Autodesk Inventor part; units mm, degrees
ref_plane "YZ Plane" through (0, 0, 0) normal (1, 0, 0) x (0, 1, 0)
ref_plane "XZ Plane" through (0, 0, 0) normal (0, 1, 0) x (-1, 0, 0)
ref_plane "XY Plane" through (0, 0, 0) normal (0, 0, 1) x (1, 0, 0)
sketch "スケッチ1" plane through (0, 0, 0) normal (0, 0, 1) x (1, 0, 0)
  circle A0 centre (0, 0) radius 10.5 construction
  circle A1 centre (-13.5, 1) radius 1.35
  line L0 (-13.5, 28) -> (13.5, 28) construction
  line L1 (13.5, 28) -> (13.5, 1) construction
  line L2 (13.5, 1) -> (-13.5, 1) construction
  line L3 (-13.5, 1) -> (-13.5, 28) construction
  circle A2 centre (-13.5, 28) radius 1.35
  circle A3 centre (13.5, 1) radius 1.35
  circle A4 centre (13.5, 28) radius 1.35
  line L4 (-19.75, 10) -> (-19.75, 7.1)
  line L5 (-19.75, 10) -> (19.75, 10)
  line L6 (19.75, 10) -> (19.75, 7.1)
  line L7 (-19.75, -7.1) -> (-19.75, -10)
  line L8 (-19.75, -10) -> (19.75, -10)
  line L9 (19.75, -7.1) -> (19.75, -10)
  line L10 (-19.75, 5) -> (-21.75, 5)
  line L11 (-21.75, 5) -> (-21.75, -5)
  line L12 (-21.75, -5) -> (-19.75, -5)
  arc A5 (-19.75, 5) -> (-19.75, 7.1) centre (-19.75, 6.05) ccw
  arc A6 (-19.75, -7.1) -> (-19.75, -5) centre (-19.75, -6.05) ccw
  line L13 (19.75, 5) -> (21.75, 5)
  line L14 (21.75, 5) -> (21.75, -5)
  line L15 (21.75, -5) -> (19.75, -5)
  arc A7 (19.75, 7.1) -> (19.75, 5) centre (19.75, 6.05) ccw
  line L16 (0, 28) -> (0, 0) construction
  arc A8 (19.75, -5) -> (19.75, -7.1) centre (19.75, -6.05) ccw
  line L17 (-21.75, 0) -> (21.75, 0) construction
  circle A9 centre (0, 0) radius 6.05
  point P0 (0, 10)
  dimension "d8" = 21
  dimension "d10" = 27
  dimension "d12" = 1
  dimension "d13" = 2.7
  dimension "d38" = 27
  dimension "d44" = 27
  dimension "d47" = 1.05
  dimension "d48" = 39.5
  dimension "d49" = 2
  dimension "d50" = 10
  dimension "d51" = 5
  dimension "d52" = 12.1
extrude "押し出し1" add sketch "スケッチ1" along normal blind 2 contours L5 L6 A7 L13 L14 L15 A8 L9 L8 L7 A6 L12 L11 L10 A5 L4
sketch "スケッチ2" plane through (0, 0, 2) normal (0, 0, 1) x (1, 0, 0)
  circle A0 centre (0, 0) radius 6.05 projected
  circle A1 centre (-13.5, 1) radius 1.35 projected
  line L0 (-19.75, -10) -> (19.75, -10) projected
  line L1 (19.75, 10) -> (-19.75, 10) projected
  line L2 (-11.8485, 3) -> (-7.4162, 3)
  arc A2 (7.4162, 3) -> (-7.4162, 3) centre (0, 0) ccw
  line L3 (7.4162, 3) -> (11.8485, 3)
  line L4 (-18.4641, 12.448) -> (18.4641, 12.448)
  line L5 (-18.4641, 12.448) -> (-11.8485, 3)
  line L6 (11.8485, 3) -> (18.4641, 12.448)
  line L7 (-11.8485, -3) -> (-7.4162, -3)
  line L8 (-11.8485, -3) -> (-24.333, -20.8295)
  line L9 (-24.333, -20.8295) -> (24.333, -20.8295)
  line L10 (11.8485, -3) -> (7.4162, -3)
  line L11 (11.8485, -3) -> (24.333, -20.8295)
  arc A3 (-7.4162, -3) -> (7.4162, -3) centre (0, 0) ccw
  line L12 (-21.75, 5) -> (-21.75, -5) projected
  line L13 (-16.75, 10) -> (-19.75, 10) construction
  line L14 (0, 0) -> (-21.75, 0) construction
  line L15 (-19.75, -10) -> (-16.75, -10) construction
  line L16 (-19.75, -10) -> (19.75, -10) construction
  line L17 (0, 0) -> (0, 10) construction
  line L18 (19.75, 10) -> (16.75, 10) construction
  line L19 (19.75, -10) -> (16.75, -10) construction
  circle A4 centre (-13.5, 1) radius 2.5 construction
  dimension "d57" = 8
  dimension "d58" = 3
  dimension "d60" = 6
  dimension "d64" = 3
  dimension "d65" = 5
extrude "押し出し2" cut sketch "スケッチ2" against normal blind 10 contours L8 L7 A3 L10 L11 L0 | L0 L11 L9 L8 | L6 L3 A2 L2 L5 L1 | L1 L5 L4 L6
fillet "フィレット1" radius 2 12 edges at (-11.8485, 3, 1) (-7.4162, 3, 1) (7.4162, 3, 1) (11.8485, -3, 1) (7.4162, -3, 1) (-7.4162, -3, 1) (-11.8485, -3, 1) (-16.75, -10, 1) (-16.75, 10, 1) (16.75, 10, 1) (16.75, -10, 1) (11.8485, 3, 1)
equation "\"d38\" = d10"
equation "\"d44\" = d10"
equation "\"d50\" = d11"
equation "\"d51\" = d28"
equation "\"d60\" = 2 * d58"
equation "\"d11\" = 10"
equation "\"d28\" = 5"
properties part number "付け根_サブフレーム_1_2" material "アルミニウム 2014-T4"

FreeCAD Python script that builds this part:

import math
import FreeCAD as App
import Part
import Sketcher
from FreeCAD import Vector
Q = App.Units.Quantity


def edges_at(feature, points):
    """Names of the edges that pass closest to the given points."""
    edges = feature.Shape.Edges
    near = lambda p: min(range(len(edges)), key=lambda i: edges[i].distToShape(Part.Vertex(*p))[0])
    return sorted({f"Edge{near(p) + 1}" for p in points})

doc = App.newDocument("Part")
params = doc.addObject("Spreadsheet::Sheet", "Params")
for row, (alias, value) in enumerate([
    ("sketch1_diameter", "2.7 mm"),
    ("sketch1_diameter2", "12.1 mm"),
    ("sketch1_width", "2 mm"),
    ("sketch1_height", "10 mm"),
    ("sketch1_radius", "1.05 mm"),
    ("pad1_length", "2 mm"),
    ("sketch2_radius", "8 mm"),
    ("pocket1_length", "10 mm"),
    ("fillet_radius", "2 mm"),
], start=1):
    params.set(f"A{row}", alias)
    params.set(f"B{row}", "=" + value)
    params.setAlias(f"B{row}", alias)

body = doc.addObject("PartDesign::Body", "Body")

# Sketch on XY plane
sketch1 = body.newObject("Sketcher::SketchObject", "Sketch")
sketch1.AttachmentSupport = (doc.getObject("XY_Plane"), [""])
sketch1.MapMode = "FlatFace"
sketch1.addGeometry([
    Part.LineSegment(Vector(19.75, 10, 0), Vector(-19.75, 10, 0)),  # 0
    Part.LineSegment(Vector(-19.75, 10, 0), Vector(-19.75, 7.1, 0)),  # 1
    Part.ArcOfCircle(Part.Circle(Vector(-19.75, 6.05, 0), Vector(0, 0, 1), 1.05), math.radians(-90), math.radians(90)),  # 2
    Part.LineSegment(Vector(-19.75, 5, 0), Vector(-21.75, 5, 0)),  # 3
    Part.LineSegment(Vector(-21.75, 5, 0), Vector(-21.75, -5, 0)),  # 4
    Part.LineSegment(Vector(-21.75, -5, 0), Vector(-19.75, -5, 0)),  # 5
    Part.ArcOfCircle(Part.Circle(Vector(-19.75, -6.05, 0), Vector(0, 0, 1), 1.05), math.radians(-90), math.radians(90)),  # 6
    Part.LineSegment(Vector(-19.75, -7.1, 0), Vector(-19.75, -10, 0)),  # 7
    Part.LineSegment(Vector(-19.75, -10, 0), Vector(19.75, -10, 0)),  # 8
    Part.LineSegment(Vector(19.75, -10, 0), Vector(19.75, -7.1, 0)),  # 9
    Part.ArcOfCircle(Part.Circle(Vector(19.75, -6.05, 0), Vector(0, 0, 1), 1.05), math.radians(90), math.radians(270)),  # 10
    Part.LineSegment(Vector(19.75, -5, 0), Vector(21.75, -5, 0)),  # 11
    Part.LineSegment(Vector(21.75, -5, 0), Vector(21.75, 5, 0)),  # 12
    Part.LineSegment(Vector(21.75, 5, 0), Vector(19.75, 5, 0)),  # 13
    Part.ArcOfCircle(Part.Circle(Vector(19.75, 6.05, 0), Vector(0, 0, 1), 1.05), math.radians(90), math.radians(270)),  # 14
    Part.LineSegment(Vector(19.75, 7.1, 0), Vector(19.75, 10, 0)),  # 15
    Part.Circle(Vector(-13.5, 1, 0), Vector(0, 0, 1), 1.35),  # 16
    Part.Circle(Vector(0, 0, 0), Vector(0, 0, 1), 6.05),  # 17
    Part.Circle(Vector(13.5, 1, 0), Vector(0, 0, 1), 1.35),  # 18
], False)
sketch1.addConstraint([
    Sketcher.Constraint("Coincident", 0, 2, 1, 1),
    Sketcher.Constraint("Coincident", 1, 2, 2, 2),
    Sketcher.Constraint("Tangent", 2, 1, 3, 1),
    Sketcher.Constraint("Coincident", 3, 2, 4, 1),
    Sketcher.Constraint("Coincident", 4, 2, 5, 1),
    Sketcher.Constraint("Tangent", 5, 2, 6, 2),
    Sketcher.Constraint("Coincident", 6, 1, 7, 1),
    Sketcher.Constraint("Coincident", 7, 2, 8, 1),
    Sketcher.Constraint("Coincident", 8, 2, 9, 1),
    Sketcher.Constraint("Coincident", 9, 2, 10, 2),
    Sketcher.Constraint("Tangent", 10, 1, 11, 1),
    Sketcher.Constraint("Coincident", 11, 2, 12, 1),
    Sketcher.Constraint("Coincident", 12, 2, 13, 1),
    Sketcher.Constraint("Tangent", 13, 2, 14, 2),
    Sketcher.Constraint("Coincident", 14, 1, 15, 1),
    Sketcher.Constraint("Coincident", 15, 2, 0, 1),
    Sketcher.Constraint("Horizontal", 0),
    Sketcher.Constraint("Vertical", 1),
    Sketcher.Constraint("Horizontal", 3),
    Sketcher.Constraint("Vertical", 4),
    Sketcher.Constraint("Horizontal", 5),
    Sketcher.Constraint("Vertical", 7),
    Sketcher.Constraint("Horizontal", 8),
    Sketcher.Constraint("Vertical", 9),
    Sketcher.Constraint("Horizontal", 11),
    Sketcher.Constraint("Vertical", 12),
    Sketcher.Constraint("Horizontal", 13),
    Sketcher.Constraint("Vertical", 15),
    Sketcher.Constraint("Coincident", 17, 3, -1, 1),
    Sketcher.Constraint("Equal", 2, 6),
    Sketcher.Constraint("Equal", 6, 10),
    Sketcher.Constraint("Equal", 10, 14),
    Sketcher.Constraint("Equal", 16, 18),
    Sketcher.Constraint("Symmetric", 2, 3, 10, 3, -1, 1),
    Sketcher.Constraint("Symmetric", 6, 3, 14, 3, -1, 1),
    Sketcher.Constraint("Symmetric", 0, 2, 8, 2, -1, 1),
    Sketcher.Constraint("Symmetric", 6, 3, 10, 3, -2),
    Sketcher.Constraint("Symmetric", 16, 3, 18, 3, -2),
    Sketcher.Constraint("Vertical", 6, 3, 0, 2),
    Sketcher.Constraint("Vertical", 5, 2, 6, 1),
    Sketcher.Constraint("Vertical", 13, 2, 14, 1),
    Sketcher.Constraint("Equal", 5, 11),
    Sketcher.Constraint("Diameter", 16, 2.7),
    Sketcher.Constraint("Diameter", 17, 12.1),
    Sketcher.Constraint("DistanceX", 3, 2, 3, 1, 2.0),
    Sketcher.Constraint("DistanceY", 4, 2, 4, 1, 10.0),
    Sketcher.Constraint("Radius", 2, 1.05),
    Sketcher.Constraint("DistanceX", 0, 2, 0, 1, 39.5),
    Sketcher.Constraint("DistanceY", -1, 1, 16, 3, 1.0),
    Sketcher.Constraint("DistanceY", -1, 1, 0, 2, 10.0),
    Sketcher.Constraint("DistanceX", 16, 3, 18, 3, 27.0),
])
sketch1.setExpression("Constraints[42]", "Params.sketch1_diameter")
sketch1.setExpression("Constraints[43]", "Params.sketch1_diameter2")
sketch1.setExpression("Constraints[44]", "Params.sketch1_width")
sketch1.setExpression("Constraints[45]", "Params.sketch1_height")
sketch1.setExpression("Constraints[46]", "Params.sketch1_radius")
pad1 = body.newObject("PartDesign::Pad", "Pad")
pad1.Profile = sketch1
pad1.setExpression("Length", "Params.pad1_length")

# Sketch on XY plane
sketch2 = body.newObject("Sketcher::SketchObject", "Sketch001")
sketch2.AttachmentSupport = (doc.getObject("XY_Plane"), [""])
sketch2.MapMode = "FlatFace"
sketch2.AttachmentOffset = App.Placement(Vector(0, 0, 2), App.Rotation())
sketch2.addGeometry([
    Part.LineSegment(Vector(-11.8485, -3, 0), Vector(-24.333, -20.8295, 0)),  # 0
    Part.LineSegment(Vector(-24.333, -20.8295, 0), Vector(24.333, -20.8295, 0)),  # 1
    Part.LineSegment(Vector(24.333, -20.8295, 0), Vector(11.8485, -3, 0)),  # 2
    Part.LineSegment(Vector(11.8485, -3, 0), Vector(7.4162, -3, 0)),  # 3
    Part.ArcOfCircle(Part.Circle(Vector(0, 0, 0), Vector(0, 0, 1), 8.000001), math.radians(-157.975691), math.radians(-22.024309)),  # 4
    Part.LineSegment(Vector(-7.4162, -3, 0), Vector(-11.8485, -3, 0)),  # 5
    Part.LineSegment(Vector(11.8485, 3, 0), Vector(18.4641, 12.448, 0)),  # 6
    Part.LineSegment(Vector(18.4641, 12.448, 0), Vector(-18.4641, 12.448, 0)),  # 7
    Part.LineSegment(Vector(-18.4641, 12.448, 0), Vector(-11.8485, 3, 0)),  # 8
    Part.LineSegment(Vector(-11.8485, 3, 0), Vector(-7.4162, 3, 0)),  # 9
    Part.ArcOfCircle(Part.Circle(Vector(0, 0, 0), Vector(0, 0, 1), 8.000001), math.radians(22.024309), math.radians(157.975691)),  # 10
    Part.LineSegment(Vector(7.4162, 3, 0), Vector(11.8485, 3, 0)),  # 11
], False)
sketch2.addConstraint([
    Sketcher.Constraint("Coincident", 0, 2, 1, 1),
    Sketcher.Constraint("Coincident", 1, 2, 2, 1),
    Sketcher.Constraint("Coincident", 2, 2, 3, 1),
    Sketcher.Constraint("Coincident", 3, 2, 4, 2),
    Sketcher.Constraint("Coincident", 4, 1, 5, 1),
    Sketcher.Constraint("Coincident", 5, 2, 0, 1),
    Sketcher.Constraint("Coincident", 6, 2, 7, 1),
    Sketcher.Constraint("Coincident", 7, 2, 8, 1),
    Sketcher.Constraint("Coincident", 8, 2, 9, 1),
    Sketcher.Constraint("Coincident", 9, 2, 10, 2),
    Sketcher.Constraint("Coincident", 10, 1, 11, 1),
    Sketcher.Constraint("Coincident", 11, 2, 6, 1),
    Sketcher.Constraint("Horizontal", 1),
    Sketcher.Constraint("Horizontal", 3),
    Sketcher.Constraint("Horizontal", 5),
    Sketcher.Constraint("Horizontal", 7),
    Sketcher.Constraint("Horizontal", 9),
    Sketcher.Constraint("Horizontal", 11),
    Sketcher.Constraint("Coincident", 4, 3, -1, 1),
    Sketcher.Constraint("Coincident", 10, 3, -1, 1),
    Sketcher.Constraint("Equal", 4, 10),
    Sketcher.Constraint("Symmetric", 2, 2, 8, 2, -1, 1),
    Sketcher.Constraint("Symmetric", 5, 2, 11, 2, -1, 1),
    Sketcher.Constraint("Symmetric", 2, 2, 5, 2, -2),
    Sketcher.Constraint("Parallel", 0, 6),
    Sketcher.Constraint("Parallel", 2, 8),
    Sketcher.Constraint("Equal", 0, 2),
    Sketcher.Constraint("Radius", 4, 8.0),
    Sketcher.Constraint("DistanceY", 2, 2, -1, 1, 3.0),
    Sketcher.Constraint("Angle", 0, Q("-125.0003 deg")),
    Sketcher.Constraint("DistanceX", 1, 1, 1, 2, 48.666),
    Sketcher.Constraint("Distance", 0, 21.766),
    Sketcher.Constraint("Distance", 6, 11.534),
])
sketch2.setExpression("Constraints[27]", "Params.sketch2_radius")
pocket1 = body.newObject("PartDesign::Pocket", "Pocket")
pocket1.Profile = sketch2
pocket1.setExpression("Length", "Params.pocket1_length")
doc.recompute()

fillet = body.newObject("PartDesign::Fillet", "Fillet")
fillet.Base = (pocket1, edges_at(pocket1, [
    (-11.848, 3, 1),
    (-7.416, 3, 1),
    (7.416, 3, 1),
    (11.848, -3, 1),
    (7.416, -3, 1),
    (-7.416, -3, 1),
    (-11.848, -3, 1),
    (-16.75, -10, 1),
    (-16.75, 10, 1),
    (16.75, 10, 1),
    (16.75, -10, 1),
    (11.848, 3, 1),
]))
fillet.setExpression("Radius", "Params.fillet_radius")

doc.recompute()
